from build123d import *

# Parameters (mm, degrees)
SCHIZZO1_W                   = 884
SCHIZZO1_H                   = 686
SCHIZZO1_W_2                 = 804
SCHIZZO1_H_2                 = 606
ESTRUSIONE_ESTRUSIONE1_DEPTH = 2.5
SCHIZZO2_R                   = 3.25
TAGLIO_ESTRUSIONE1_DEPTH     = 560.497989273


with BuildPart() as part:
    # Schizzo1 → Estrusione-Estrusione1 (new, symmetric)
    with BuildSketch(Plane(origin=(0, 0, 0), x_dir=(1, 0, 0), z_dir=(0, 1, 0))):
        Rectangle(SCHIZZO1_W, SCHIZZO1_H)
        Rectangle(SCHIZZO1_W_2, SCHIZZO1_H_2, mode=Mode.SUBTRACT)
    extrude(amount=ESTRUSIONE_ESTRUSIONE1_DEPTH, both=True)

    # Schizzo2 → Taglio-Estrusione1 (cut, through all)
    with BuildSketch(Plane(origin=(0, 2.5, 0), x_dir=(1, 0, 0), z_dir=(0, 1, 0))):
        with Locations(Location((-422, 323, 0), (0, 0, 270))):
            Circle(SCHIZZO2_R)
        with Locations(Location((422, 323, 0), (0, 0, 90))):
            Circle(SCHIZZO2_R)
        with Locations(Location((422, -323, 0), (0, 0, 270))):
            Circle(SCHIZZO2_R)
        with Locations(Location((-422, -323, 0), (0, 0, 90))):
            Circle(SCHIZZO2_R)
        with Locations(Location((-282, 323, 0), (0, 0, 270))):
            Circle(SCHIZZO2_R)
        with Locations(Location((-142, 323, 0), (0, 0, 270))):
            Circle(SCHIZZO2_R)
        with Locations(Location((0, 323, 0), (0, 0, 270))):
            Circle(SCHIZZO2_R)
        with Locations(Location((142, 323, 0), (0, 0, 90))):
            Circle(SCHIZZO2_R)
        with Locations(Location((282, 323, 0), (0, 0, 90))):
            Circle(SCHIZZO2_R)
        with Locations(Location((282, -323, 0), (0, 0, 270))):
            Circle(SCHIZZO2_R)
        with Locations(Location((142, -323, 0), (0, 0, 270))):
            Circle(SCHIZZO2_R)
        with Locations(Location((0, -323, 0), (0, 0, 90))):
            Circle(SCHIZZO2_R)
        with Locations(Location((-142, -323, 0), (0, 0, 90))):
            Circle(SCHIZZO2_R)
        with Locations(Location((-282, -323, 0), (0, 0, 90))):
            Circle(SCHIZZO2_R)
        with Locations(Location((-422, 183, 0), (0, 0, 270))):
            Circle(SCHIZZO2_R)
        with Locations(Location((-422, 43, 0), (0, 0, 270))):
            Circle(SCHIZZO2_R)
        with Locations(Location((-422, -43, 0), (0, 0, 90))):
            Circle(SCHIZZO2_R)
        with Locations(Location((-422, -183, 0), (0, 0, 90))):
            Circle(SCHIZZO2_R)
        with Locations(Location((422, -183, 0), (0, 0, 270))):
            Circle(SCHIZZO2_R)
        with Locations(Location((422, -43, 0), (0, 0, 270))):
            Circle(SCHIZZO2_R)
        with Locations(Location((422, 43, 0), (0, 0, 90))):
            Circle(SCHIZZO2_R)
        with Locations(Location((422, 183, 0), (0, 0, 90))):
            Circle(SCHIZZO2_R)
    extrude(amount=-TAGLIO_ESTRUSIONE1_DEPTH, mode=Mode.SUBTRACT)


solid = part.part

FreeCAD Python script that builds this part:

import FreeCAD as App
import Part
import Sketcher
from FreeCAD import Vector


def add_polygon(sketch, points):
    """Adds a closed chain of lines whose ends are joined by coincident constraints."""
    first, n = sketch.GeometryCount, len(points)
    for a, b in zip(points, points[1:] + points[:1]):
        sketch.addGeometry(Part.LineSegment(App.Vector(*a, 0), App.Vector(*b, 0)), False)
    for i in range(n):
        sketch.addConstraint(Sketcher.Constraint("Coincident", first + i, 2, first + (i + 1) % n, 1))

doc = App.newDocument("Part")
params = doc.addObject("Spreadsheet::Sheet", "Params")
for row, (alias, value) in enumerate([
    ("sketch1_width", "884 mm"),
    ("sketch1_width2", "804 mm"),
    ("sketch1_height", "686 mm"),
    ("sketch1_height2", "606 mm"),
    ("pad1_length", "5 mm"),
    ("sketch2_diameter", "6.5 mm"),
], start=1):
    params.set(f"A{row}", alias)
    params.set(f"B{row}", "=" + value)
    params.setAlias(f"B{row}", alias)

body = doc.addObject("PartDesign::Body", "Body")

# Sketch on XZ plane
sketch1 = body.newObject("Sketcher::SketchObject", "Sketch")
sketch1.AttachmentSupport = (doc.getObject("XZ_Plane"), [""])
sketch1.MapMode = "FlatFace"
add_polygon(sketch1, [(-442, -343), (-442, 343), (442, 343), (442, -343)])  # lines 0-3
add_polygon(sketch1, [(402, 303), (-402, 303), (-402, -303), (402, -303)])  # lines 4-7
sketch1.addConstraint([
    Sketcher.Constraint("Vertical", 0),
    Sketcher.Constraint("Horizontal", 1),
    Sketcher.Constraint("Vertical", 2),
    Sketcher.Constraint("Horizontal", 3),
    Sketcher.Constraint("Horizontal", 4),
    Sketcher.Constraint("Vertical", 5),
    Sketcher.Constraint("Horizontal", 6),
    Sketcher.Constraint("Vertical", 7),
    Sketcher.Constraint("Symmetric", 0, 2, 2, 2, -1, 1),
    Sketcher.Constraint("Symmetric", 4, 2, 6, 2, -1, 1),
    Sketcher.Constraint("DistanceX", 1, 1, 1, 2, 884.0),
    Sketcher.Constraint("DistanceX", 4, 2, 4, 1, 804.0),
    Sketcher.Constraint("DistanceY", 0, 1, 0, 2, 686.0),
    Sketcher.Constraint("DistanceY", 5, 2, 5, 1, 606.0),
])
sketch1.setExpression("Constraints[18]", "Params.sketch1_width")
sketch1.setExpression("Constraints[19]", "Params.sketch1_width2")
sketch1.setExpression("Constraints[20]", "Params.sketch1_height")
sketch1.setExpression("Constraints[21]", "Params.sketch1_height2")
pad1 = body.newObject("PartDesign::Pad", "Pad")
pad1.Profile = sketch1
pad1.setExpression("Length", "Params.pad1_length")
pad1.Midplane = True

# Sketch on XZ plane
sketch2 = body.newObject("Sketcher::SketchObject", "Sketch001")
sketch2.AttachmentSupport = (doc.getObject("XZ_Plane"), [""])
sketch2.MapMode = "FlatFace"
sketch2.AttachmentOffset = App.Placement(Vector(0, 0, -2.5), App.Rotation())
sketch2.addGeometry([
    Part.Circle(Vector(-422, -323, 0), Vector(0, 0, 1), 3.2),  # 0
    Part.Circle(Vector(422, -323, 0), Vector(0, 0, 1), 3.2),  # 1
    Part.Circle(Vector(422, 323, 0), Vector(0, 0, 1), 3.2),  # 2
    Part.Circle(Vector(-422, 323, 0), Vector(0, 0, 1), 3.2),  # 3
    Part.Circle(Vector(-282, -323, 0), Vector(0, 0, 1), 3.2),  # 4
    Part.Circle(Vector(-142, -323, 0), Vector(0, 0, 1), 3.2),  # 5
    Part.Circle(Vector(0, -323, 0), Vector(0, 0, 1), 3.2),  # 6
    Part.Circle(Vector(142, -323, 0), Vector(0, 0, 1), 3.2),  # 7
    Part.Circle(Vector(282, -323, 0), Vector(0, 0, 1), 3.2),  # 8
    Part.Circle(Vector(282, 323, 0), Vector(0, 0, 1), 3.2),  # 9
    Part.Circle(Vector(142, 323, 0), Vector(0, 0, 1), 3.2),  # 10
    Part.Circle(Vector(0, 323, 0), Vector(0, 0, 1), 3.2),  # 11
    Part.Circle(Vector(-142, 323, 0), Vector(0, 0, 1), 3.2),  # 12
    Part.Circle(Vector(-282, 323, 0), Vector(0, 0, 1), 3.2),  # 13
    Part.Circle(Vector(-422, -183, 0), Vector(0, 0, 1), 3.2),  # 14
    Part.Circle(Vector(-422, -43, 0), Vector(0, 0, 1), 3.2),  # 15
    Part.Circle(Vector(-422, 43, 0), Vector(0, 0, 1), 3.2),  # 16
    Part.Circle(Vector(-422, 183, 0), Vector(0, 0, 1), 3.2),  # 17
    Part.Circle(Vector(422, 183, 0), Vector(0, 0, 1), 3.2),  # 18
    Part.Circle(Vector(422, 43, 0), Vector(0, 0, 1), 3.2),  # 19
    Part.Circle(Vector(422, -43, 0), Vector(0, 0, 1), 3.2),  # 20
    Part.Circle(Vector(422, -183, 0), Vector(0, 0, 1), 3.2),  # 21
], False)
sketch2.addConstraint([
    Sketcher.Constraint("Equal", 0, 1),
    Sketcher.Constraint("Equal", 1, 2),
    Sketcher.Constraint("Equal", 2, 3),
    Sketcher.Constraint("Equal", 3, 4),
    Sketcher.Constraint("Equal", 4, 5),
    Sketcher.Constraint("Equal", 5, 6),
    Sketcher.Constraint("Equal", 6, 7),
    Sketcher.Constraint("Equal", 7, 8),
    Sketcher.Constraint("Equal", 8, 9),
    Sketcher.Constraint("Equal", 9, 10),
    Sketcher.Constraint("Equal", 10, 11),
    Sketcher.Constraint("Equal", 11, 12),
    Sketcher.Constraint("Equal", 12, 13),
    Sketcher.Constraint("Equal", 13, 14),
    Sketcher.Constraint("Equal", 14, 15),
    Sketcher.Constraint("Equal", 15, 16),
    Sketcher.Constraint("Equal", 16, 17),
    Sketcher.Constraint("Equal", 17, 18),
    Sketcher.Constraint("Equal", 18, 19),
    Sketcher.Constraint("Equal", 19, 20),
    Sketcher.Constraint("Equal", 20, 21),
    Sketcher.Constraint("Symmetric", 0, 3, 2, 3, -1, 1),
    Sketcher.Constraint("Symmetric", 1, 3, 3, 3, -1, 1),
    Sketcher.Constraint("Symmetric", 4, 3, 9, 3, -1, 1),
    Sketcher.Constraint("Symmetric", 5, 3, 10, 3, -1, 1),
    Sketcher.Constraint("Symmetric", 6, 3, 11, 3, -1, 1),
    Sketcher.Constraint("Symmetric", 7, 3, 12, 3, -1, 1),
    Sketcher.Constraint("Symmetric", 8, 3, 13, 3, -1, 1),
    Sketcher.Constraint("Symmetric", 14, 3, 18, 3, -1, 1),
    Sketcher.Constraint("Symmetric", 15, 3, 19, 3, -1, 1),
    Sketcher.Constraint("Symmetric", 16, 3, 20, 3, -1, 1),
    Sketcher.Constraint("Symmetric", 17, 3, 21, 3, -1, 1),
    Sketcher.Constraint("Symmetric", 0, 3, 1, 3, -2),
    Sketcher.Constraint("Symmetric", 5, 3, 7, 3, -2),
    Sketcher.Constraint("Symmetric", 4, 3, 8, 3, -2),
    Sketcher.Constraint("Symmetric", 17, 3, 18, 3, -2),
    Sketcher.Constraint("Symmetric", 16, 3, 19, 3, -2),
    Sketcher.Constraint("PointOnObject", 6, 3, -2),
    Sketcher.Constraint("Horizontal", 1, 3, 4, 3),
    Sketcher.Constraint("Horizontal", 4, 3, 5, 3),
    Sketcher.Constraint("Horizontal", 5, 3, 6, 3),
    Sketcher.Constraint("Vertical", 3, 3, 14, 3),
    Sketcher.Constraint("Vertical", 14, 3, 15, 3),
    Sketcher.Constraint("Diameter", 0, 6.5),
    Sketcher.Constraint("DistanceX", 0, 3, -1, 1, 422.0),
    Sketcher.Constraint("DistanceY", 0, 3, -1, 1, 323.0),
    Sketcher.Constraint("DistanceX", 4, 3, -1, 1, 282.0),
    Sketcher.Constraint("DistanceX", 5, 3, -1, 1, 142.0),
    Sketcher.Constraint("DistanceY", 14, 3, -1, 1, 183.0),
    Sketcher.Constraint("DistanceY", 15, 3, -1, 1, 43.0),
])
sketch2.setExpression("Constraints[43]", "Params.sketch2_diameter")
pocket1 = body.newObject("PartDesign::Pocket", "Pocket")
pocket1.Profile = sketch2
pocket1.Type = "ThroughAll"
pocket1.Reversed = True

doc.recompute()
